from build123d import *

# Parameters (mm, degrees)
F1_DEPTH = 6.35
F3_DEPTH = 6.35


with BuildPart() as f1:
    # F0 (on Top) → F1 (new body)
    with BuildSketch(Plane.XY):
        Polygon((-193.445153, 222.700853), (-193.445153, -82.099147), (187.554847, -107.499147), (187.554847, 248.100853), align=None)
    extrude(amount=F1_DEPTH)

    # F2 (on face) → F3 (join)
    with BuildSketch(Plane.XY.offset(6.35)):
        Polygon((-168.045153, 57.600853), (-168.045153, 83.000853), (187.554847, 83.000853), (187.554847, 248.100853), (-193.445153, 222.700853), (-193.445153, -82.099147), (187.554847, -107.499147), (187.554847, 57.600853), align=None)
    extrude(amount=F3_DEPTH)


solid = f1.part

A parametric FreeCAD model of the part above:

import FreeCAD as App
import Part
import Sketcher
from FreeCAD import Vector
Q = App.Units.Quantity

doc = App.newDocument("Part")
body = doc.addObject("PartDesign::Body", "Body")

# Sketch on XY plane
sketch1 = body.newObject("Sketcher::SketchObject", "Sketch")
sketch1.AttachmentSupport = (doc.getObject("XY_Plane"), [""])
sketch1.MapMode = "FlatFace"
sketch1.addGeometry(Part.LineSegment(Vector(-193.445153, 222.700853, 0), Vector(-193.445153, -82.099147, 0)), False)
sketch1.addGeometry(Part.LineSegment(Vector(-193.445153, -82.099147, 0), Vector(187.554847, -107.499147, 0)), False)
sketch1.addGeometry(Part.LineSegment(Vector(187.554847, -107.499147, 0), Vector(187.554847, 248.100853, 0)), False)
sketch1.addGeometry(Part.LineSegment(Vector(187.554847, 248.100853, 0), Vector(-193.445153, 222.700853, 0)), False)
sketch1.addConstraint(Sketcher.Constraint("Coincident", 0, 2, 1, 1))
sketch1.addConstraint(Sketcher.Constraint("Coincident", 1, 2, 2, 1))
sketch1.addConstraint(Sketcher.Constraint("Coincident", 2, 2, 3, 1))
sketch1.addConstraint(Sketcher.Constraint("Coincident", 3, 2, 0, 1))
sketch1.addConstraint(Sketcher.Constraint("Vertical", 0))
sketch1.addConstraint(Sketcher.Constraint("Vertical", 2))
sketch1.addConstraint(Sketcher.Constraint("Equal", 1, 3))
sketch1.addConstraint(Sketcher.Constraint("DistanceY", 0, 2, 0, 1, Q("12 in")))
sketch1.addConstraint(Sketcher.Constraint("DistanceY", 2, 1, 2, 2, Q("14 in")))
sketch1.addConstraint(Sketcher.Constraint("DistanceX", 0, 2, 1, 2, Q("15 in")))
sketch1.addConstraint(Sketcher.Constraint("DistanceX", 0, 2, -1, 1, 193.445153))
sketch1.addConstraint(Sketcher.Constraint("DistanceY", 0, 2, -1, 1, 82.099147))
pad1 = body.newObject("PartDesign::Pad", "Pad")
pad1.Profile = sketch1
pad1.Length = Q("0.25 in")

# Sketch on XY plane
sketch2 = body.newObject("Sketcher::SketchObject", "Sketch001")
sketch2.AttachmentSupport = (doc.getObject("XY_Plane"), [""])
sketch2.MapMode = "FlatFace"
sketch2.AttachmentOffset = App.Placement(Vector(0, 0, 0.25 * 25.4), App.Rotation())
sketch2.addGeometry(Part.LineSegment(Vector(-168.045153, 57.600853, 0), Vector(-168.045153, 83.000853, 0)), False)
sketch2.addGeometry(Part.LineSegment(Vector(-168.045153, 83.000853, 0), Vector(187.554847, 83.000853, 0)), False)
sketch2.addGeometry(Part.LineSegment(Vector(187.554847, 83.000853, 0), Vector(187.554847, 248.100853, 0)), False)
sketch2.addGeometry(Part.LineSegment(Vector(187.554847, 248.100853, 0), Vector(-193.445153, 222.700853, 0)), False)
sketch2.addGeometry(Part.LineSegment(Vector(-193.445153, 222.700853, 0), Vector(-193.445153, -82.099147, 0)), False)
sketch2.addGeometry(Part.LineSegment(Vector(-193.445153, -82.099147, 0), Vector(187.554847, -107.499147, 0)), False)
sketch2.addGeometry(Part.LineSegment(Vector(187.554847, -107.499147, 0), Vector(187.554847, 57.600853, 0)), False)
sketch2.addGeometry(Part.LineSegment(Vector(187.554847, 57.600853, 0), Vector(-168.045153, 57.600853, 0)), False)
sketch2.addConstraint(Sketcher.Constraint("Coincident", 0, 2, 1, 1))
sketch2.addConstraint(Sketcher.Constraint("Coincident", 1, 2, 2, 1))
sketch2.addConstraint(Sketcher.Constraint("Coincident", 2, 2, 3, 1))
sketch2.addConstraint(Sketcher.Constraint("Coincident", 3, 2, 4, 1))
sketch2.addConstraint(Sketcher.Constraint("Coincident", 4, 2, 5, 1))
sketch2.addConstraint(Sketcher.Constraint("Coincident", 5, 2, 6, 1))
sketch2.addConstraint(Sketcher.Constraint("Coincident", 6, 2, 7, 1))
sketch2.addConstraint(Sketcher.Constraint("Coincident", 7, 2, 0, 1))
sketch2.addConstraint(Sketcher.Constraint("Vertical", 0))
sketch2.addConstraint(Sketcher.Constraint("Horizontal", 1))
sketch2.addConstraint(Sketcher.Constraint("Vertical", 2))
sketch2.addConstraint(Sketcher.Constraint("Vertical", 4))
sketch2.addConstraint(Sketcher.Constraint("Vertical", 6))
sketch2.addConstraint(Sketcher.Constraint("Horizontal", 7))
sketch2.addConstraint(Sketcher.Constraint("Vertical", 2, 2, 5, 2))
sketch2.addConstraint(Sketcher.Constraint("Equal", 2, 6))
sketch2.addConstraint(Sketcher.Constraint("Equal", 3, 5))
sketch2.addConstraint(Sketcher.Constraint("DistanceX", 1, 1, 1, 2, Q("14 in")))
sketch2.addConstraint(Sketcher.Constraint("DistanceY", 0, 1, 0, 2, Q("1 in")))
sketch2.addConstraint(Sketcher.Constraint("DistanceY", 4, 2, 4, 1, Q("12 in")))
sketch2.addConstraint(Sketcher.Constraint("DistanceY", 2, 1, 2, 2, Q("6.5 in")))
sketch2.addConstraint(Sketcher.Constraint("DistanceX", 3, 2, 0, 2, Q("1 in")))
sketch2.addConstraint(Sketcher.Constraint("DistanceX", 0, 2, -1, 1, 168.045153))
sketch2.addConstraint(Sketcher.Constraint("DistanceY", -1, 1, 0, 2, 83.000853))
pad2 = body.newObject("PartDesign::Pad", "Pad001")
pad2.Profile = sketch2
pad2.Length = Q("0.25 in")

doc.recompute()
